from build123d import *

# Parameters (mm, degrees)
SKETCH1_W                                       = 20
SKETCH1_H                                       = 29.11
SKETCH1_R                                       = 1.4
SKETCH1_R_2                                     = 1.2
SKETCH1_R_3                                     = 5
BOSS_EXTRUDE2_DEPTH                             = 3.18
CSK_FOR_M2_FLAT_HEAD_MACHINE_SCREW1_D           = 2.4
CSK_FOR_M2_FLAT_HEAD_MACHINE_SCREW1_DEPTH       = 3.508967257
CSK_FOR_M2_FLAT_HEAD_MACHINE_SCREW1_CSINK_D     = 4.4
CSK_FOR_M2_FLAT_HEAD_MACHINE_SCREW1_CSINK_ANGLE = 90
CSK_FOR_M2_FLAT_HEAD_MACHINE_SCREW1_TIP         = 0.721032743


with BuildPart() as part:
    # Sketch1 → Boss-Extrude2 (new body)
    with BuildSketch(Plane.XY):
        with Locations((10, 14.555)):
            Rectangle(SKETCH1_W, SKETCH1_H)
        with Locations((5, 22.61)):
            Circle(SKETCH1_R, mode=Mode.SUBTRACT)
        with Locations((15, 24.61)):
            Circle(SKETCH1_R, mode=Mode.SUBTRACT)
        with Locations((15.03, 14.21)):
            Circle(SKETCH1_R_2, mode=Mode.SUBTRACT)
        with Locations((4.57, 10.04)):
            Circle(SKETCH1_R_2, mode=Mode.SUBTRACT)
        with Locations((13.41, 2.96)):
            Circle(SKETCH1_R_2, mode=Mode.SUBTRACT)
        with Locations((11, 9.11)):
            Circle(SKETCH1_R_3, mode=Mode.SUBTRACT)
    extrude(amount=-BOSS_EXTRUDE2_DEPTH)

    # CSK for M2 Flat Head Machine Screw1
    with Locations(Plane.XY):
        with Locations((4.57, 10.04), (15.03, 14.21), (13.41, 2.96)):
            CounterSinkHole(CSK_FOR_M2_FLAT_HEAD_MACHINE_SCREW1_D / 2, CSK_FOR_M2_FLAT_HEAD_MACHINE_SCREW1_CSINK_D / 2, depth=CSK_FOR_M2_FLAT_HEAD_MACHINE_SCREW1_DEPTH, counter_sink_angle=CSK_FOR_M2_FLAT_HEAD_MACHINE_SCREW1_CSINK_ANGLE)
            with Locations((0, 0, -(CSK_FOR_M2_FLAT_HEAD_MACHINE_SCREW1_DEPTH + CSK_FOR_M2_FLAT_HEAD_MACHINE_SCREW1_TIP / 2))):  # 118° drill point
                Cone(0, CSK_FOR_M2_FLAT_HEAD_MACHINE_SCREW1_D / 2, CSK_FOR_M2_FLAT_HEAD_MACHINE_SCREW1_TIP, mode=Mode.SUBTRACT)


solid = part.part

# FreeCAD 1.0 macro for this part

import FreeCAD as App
import Part
import Sketcher

V = App.Vector

doc = App.newDocument("Part")
body = doc.addObject("PartDesign::Body", "Body")

sketch1 = doc.addObject("Sketcher::SketchObject", "Sketch")
body.addObject(sketch1)
sketch1.AttachmentSupport = (doc.XY_Plane, [""])
sketch1.MapMode = "FlatFace"
sketch1.addGeometry(Part.LineSegment(V(0, 29.11, 0), V(0, 0, 0)), False)
sketch1.addGeometry(Part.LineSegment(V(0, 0, 0), V(20, 0, 0)), False)
sketch1.addGeometry(Part.LineSegment(V(20, 0, 0), V(20, 29.11, 0)), False)
sketch1.addGeometry(Part.LineSegment(V(20, 29.11, 0), V(0, 29.11, 0)), False)
sketch1.addGeometry(Part.Circle(V(4.57, 10.04, 0), V(0, 0, 1), 1.2), False)
sketch1.addGeometry(Part.Circle(V(13.41, 2.96, 0), V(0, 0, 1), 1.2), False)
sketch1.addGeometry(Part.Circle(V(11, 9.11, 0), V(0, 0, 1), 5), False)
sketch1.addGeometry(Part.Circle(V(5, 22.61, 0), V(0, 0, 1), 1.4), False)
sketch1.addGeometry(Part.Circle(V(15.03, 14.21, 0), V(0, 0, 1), 1.2), False)
sketch1.addGeometry(Part.Circle(V(15, 24.61, 0), V(0, 0, 1), 1.4), False)
sketch1.addConstraint(Sketcher.Constraint("Coincident", 0, 2, 1, 1))
sketch1.addConstraint(Sketcher.Constraint("Coincident", 1, 2, 2, 1))
sketch1.addConstraint(Sketcher.Constraint("Coincident", 2, 2, 3, 1))
sketch1.addConstraint(Sketcher.Constraint("Coincident", 3, 2, 0, 1))
sketch1.addConstraint(Sketcher.Constraint("Vertical", 0))
sketch1.addConstraint(Sketcher.Constraint("Horizontal", 1))
sketch1.addConstraint(Sketcher.Constraint("Vertical", 2))
sketch1.addConstraint(Sketcher.Constraint("Horizontal", 3))
sketch1.addConstraint(Sketcher.Constraint("Coincident", 0, 2, -1, 1))
sketch1.addConstraint(Sketcher.Constraint("Equal", 4, 5))
sketch1.addConstraint(Sketcher.Constraint("Equal", 5, 8))
sketch1.addConstraint(Sketcher.Constraint("Equal", 7, 9))
sketch1.addConstraint(Sketcher.Constraint("Diameter", 6, 10.0))
sketch1.addConstraint(Sketcher.Constraint("Diameter", 4, 2.4))
sketch1.addConstraint(Sketcher.Constraint("Diameter", 7, 2.8))
sketch1.addConstraint(Sketcher.Constraint("DistanceX", 1, 1, 1, 2, 20.0))
sketch1.addConstraint(Sketcher.Constraint("DistanceX", -1, 1, 6, 3, 11.0))
sketch1.addConstraint(Sketcher.Constraint("DistanceX", -1, 1, 7, 3, 5.0))
sketch1.addConstraint(Sketcher.Constraint("DistanceX", -1, 1, 9, 3, 15.0))
sketch1.addConstraint(Sketcher.Constraint("DistanceY", 7, 3, 9, 3, 2.0))
sketch1.addConstraint(Sketcher.Constraint("DistanceY", 6, 3, 2, 2, 20.0))
sketch1.addConstraint(Sketcher.Constraint("DistanceY", 0, 2, 0, 1, 29.11))
sketch1.addConstraint(Sketcher.Constraint("DistanceY", 6, 3, 7, 3, 13.5))
sketch1.addConstraint(Sketcher.Constraint("DistanceY", 6, 3, 8, 3, 5.1))
sketch1.addConstraint(Sketcher.Constraint("DistanceX", -1, 1, 4, 3, 4.57))
sketch1.addConstraint(Sketcher.Constraint("DistanceY", -1, 1, 4, 3, 10.04))
sketch1.addConstraint(Sketcher.Constraint("DistanceX", -1, 1, 5, 3, 13.41))
sketch1.addConstraint(Sketcher.Constraint("DistanceY", -1, 1, 5, 3, 2.96))
sketch1.addConstraint(Sketcher.Constraint("DistanceX", -1, 1, 8, 3, 15.03))
pad1 = doc.addObject("PartDesign::Pad", "Pad")
body.addObject(pad1)
pad1.Profile = sketch1
pad1.Length = 3.18
pad1.Reversed = True

sketch2 = doc.addObject("Sketcher::SketchObject", "Sketch001")
body.addObject(sketch2)
sketch2.AttachmentSupport = (doc.XY_Plane, [""])
sketch2.MapMode = "FlatFace"
sketch2.addGeometry(Part.Circle(V(4.57, 10.04, 0), V(0, 0, 1), 1.2), False)
sketch2.addGeometry(Part.Circle(V(15.03, 14.21, 0), V(0, 0, 1), 1.2), False)
sketch2.addGeometry(Part.Circle(V(13.41, 2.96, 0), V(0, 0, 1), 1.2), False)
sketch2.addConstraint(Sketcher.Constraint("Equal", 0, 1))
sketch2.addConstraint(Sketcher.Constraint("Equal", 1, 2))
sketch2.addConstraint(Sketcher.Constraint("Diameter", 0, 2.4))
sketch2.addConstraint(Sketcher.Constraint("DistanceX", -1, 1, 0, 3, 4.57))
sketch2.addConstraint(Sketcher.Constraint("DistanceY", -1, 1, 0, 3, 10.04))
sketch2.addConstraint(Sketcher.Constraint("DistanceX", -1, 1, 1, 3, 15.03))
sketch2.addConstraint(Sketcher.Constraint("DistanceY", -1, 1, 1, 3, 14.21))
sketch2.addConstraint(Sketcher.Constraint("DistanceX", -1, 1, 2, 3, 13.41))
sketch2.addConstraint(Sketcher.Constraint("DistanceY", -1, 1, 2, 3, 2.96))
doc.recompute()
hole = doc.addObject("PartDesign::Hole", "Hole")
body.addObject(hole)
hole.Profile = sketch2
hole.ThreadType = "None"
hole.Diameter = 2.4
hole.DepthType = "Dimension"
hole.Depth = 3.508967
hole.DrillPoint = "Angled"
hole.DrillPointAngle = 118
hole.HoleCutType = "Countersink"
hole.HoleCutDiameter = 4.4
hole.HoleCutCountersinkAngle = 90

doc.recompute()
